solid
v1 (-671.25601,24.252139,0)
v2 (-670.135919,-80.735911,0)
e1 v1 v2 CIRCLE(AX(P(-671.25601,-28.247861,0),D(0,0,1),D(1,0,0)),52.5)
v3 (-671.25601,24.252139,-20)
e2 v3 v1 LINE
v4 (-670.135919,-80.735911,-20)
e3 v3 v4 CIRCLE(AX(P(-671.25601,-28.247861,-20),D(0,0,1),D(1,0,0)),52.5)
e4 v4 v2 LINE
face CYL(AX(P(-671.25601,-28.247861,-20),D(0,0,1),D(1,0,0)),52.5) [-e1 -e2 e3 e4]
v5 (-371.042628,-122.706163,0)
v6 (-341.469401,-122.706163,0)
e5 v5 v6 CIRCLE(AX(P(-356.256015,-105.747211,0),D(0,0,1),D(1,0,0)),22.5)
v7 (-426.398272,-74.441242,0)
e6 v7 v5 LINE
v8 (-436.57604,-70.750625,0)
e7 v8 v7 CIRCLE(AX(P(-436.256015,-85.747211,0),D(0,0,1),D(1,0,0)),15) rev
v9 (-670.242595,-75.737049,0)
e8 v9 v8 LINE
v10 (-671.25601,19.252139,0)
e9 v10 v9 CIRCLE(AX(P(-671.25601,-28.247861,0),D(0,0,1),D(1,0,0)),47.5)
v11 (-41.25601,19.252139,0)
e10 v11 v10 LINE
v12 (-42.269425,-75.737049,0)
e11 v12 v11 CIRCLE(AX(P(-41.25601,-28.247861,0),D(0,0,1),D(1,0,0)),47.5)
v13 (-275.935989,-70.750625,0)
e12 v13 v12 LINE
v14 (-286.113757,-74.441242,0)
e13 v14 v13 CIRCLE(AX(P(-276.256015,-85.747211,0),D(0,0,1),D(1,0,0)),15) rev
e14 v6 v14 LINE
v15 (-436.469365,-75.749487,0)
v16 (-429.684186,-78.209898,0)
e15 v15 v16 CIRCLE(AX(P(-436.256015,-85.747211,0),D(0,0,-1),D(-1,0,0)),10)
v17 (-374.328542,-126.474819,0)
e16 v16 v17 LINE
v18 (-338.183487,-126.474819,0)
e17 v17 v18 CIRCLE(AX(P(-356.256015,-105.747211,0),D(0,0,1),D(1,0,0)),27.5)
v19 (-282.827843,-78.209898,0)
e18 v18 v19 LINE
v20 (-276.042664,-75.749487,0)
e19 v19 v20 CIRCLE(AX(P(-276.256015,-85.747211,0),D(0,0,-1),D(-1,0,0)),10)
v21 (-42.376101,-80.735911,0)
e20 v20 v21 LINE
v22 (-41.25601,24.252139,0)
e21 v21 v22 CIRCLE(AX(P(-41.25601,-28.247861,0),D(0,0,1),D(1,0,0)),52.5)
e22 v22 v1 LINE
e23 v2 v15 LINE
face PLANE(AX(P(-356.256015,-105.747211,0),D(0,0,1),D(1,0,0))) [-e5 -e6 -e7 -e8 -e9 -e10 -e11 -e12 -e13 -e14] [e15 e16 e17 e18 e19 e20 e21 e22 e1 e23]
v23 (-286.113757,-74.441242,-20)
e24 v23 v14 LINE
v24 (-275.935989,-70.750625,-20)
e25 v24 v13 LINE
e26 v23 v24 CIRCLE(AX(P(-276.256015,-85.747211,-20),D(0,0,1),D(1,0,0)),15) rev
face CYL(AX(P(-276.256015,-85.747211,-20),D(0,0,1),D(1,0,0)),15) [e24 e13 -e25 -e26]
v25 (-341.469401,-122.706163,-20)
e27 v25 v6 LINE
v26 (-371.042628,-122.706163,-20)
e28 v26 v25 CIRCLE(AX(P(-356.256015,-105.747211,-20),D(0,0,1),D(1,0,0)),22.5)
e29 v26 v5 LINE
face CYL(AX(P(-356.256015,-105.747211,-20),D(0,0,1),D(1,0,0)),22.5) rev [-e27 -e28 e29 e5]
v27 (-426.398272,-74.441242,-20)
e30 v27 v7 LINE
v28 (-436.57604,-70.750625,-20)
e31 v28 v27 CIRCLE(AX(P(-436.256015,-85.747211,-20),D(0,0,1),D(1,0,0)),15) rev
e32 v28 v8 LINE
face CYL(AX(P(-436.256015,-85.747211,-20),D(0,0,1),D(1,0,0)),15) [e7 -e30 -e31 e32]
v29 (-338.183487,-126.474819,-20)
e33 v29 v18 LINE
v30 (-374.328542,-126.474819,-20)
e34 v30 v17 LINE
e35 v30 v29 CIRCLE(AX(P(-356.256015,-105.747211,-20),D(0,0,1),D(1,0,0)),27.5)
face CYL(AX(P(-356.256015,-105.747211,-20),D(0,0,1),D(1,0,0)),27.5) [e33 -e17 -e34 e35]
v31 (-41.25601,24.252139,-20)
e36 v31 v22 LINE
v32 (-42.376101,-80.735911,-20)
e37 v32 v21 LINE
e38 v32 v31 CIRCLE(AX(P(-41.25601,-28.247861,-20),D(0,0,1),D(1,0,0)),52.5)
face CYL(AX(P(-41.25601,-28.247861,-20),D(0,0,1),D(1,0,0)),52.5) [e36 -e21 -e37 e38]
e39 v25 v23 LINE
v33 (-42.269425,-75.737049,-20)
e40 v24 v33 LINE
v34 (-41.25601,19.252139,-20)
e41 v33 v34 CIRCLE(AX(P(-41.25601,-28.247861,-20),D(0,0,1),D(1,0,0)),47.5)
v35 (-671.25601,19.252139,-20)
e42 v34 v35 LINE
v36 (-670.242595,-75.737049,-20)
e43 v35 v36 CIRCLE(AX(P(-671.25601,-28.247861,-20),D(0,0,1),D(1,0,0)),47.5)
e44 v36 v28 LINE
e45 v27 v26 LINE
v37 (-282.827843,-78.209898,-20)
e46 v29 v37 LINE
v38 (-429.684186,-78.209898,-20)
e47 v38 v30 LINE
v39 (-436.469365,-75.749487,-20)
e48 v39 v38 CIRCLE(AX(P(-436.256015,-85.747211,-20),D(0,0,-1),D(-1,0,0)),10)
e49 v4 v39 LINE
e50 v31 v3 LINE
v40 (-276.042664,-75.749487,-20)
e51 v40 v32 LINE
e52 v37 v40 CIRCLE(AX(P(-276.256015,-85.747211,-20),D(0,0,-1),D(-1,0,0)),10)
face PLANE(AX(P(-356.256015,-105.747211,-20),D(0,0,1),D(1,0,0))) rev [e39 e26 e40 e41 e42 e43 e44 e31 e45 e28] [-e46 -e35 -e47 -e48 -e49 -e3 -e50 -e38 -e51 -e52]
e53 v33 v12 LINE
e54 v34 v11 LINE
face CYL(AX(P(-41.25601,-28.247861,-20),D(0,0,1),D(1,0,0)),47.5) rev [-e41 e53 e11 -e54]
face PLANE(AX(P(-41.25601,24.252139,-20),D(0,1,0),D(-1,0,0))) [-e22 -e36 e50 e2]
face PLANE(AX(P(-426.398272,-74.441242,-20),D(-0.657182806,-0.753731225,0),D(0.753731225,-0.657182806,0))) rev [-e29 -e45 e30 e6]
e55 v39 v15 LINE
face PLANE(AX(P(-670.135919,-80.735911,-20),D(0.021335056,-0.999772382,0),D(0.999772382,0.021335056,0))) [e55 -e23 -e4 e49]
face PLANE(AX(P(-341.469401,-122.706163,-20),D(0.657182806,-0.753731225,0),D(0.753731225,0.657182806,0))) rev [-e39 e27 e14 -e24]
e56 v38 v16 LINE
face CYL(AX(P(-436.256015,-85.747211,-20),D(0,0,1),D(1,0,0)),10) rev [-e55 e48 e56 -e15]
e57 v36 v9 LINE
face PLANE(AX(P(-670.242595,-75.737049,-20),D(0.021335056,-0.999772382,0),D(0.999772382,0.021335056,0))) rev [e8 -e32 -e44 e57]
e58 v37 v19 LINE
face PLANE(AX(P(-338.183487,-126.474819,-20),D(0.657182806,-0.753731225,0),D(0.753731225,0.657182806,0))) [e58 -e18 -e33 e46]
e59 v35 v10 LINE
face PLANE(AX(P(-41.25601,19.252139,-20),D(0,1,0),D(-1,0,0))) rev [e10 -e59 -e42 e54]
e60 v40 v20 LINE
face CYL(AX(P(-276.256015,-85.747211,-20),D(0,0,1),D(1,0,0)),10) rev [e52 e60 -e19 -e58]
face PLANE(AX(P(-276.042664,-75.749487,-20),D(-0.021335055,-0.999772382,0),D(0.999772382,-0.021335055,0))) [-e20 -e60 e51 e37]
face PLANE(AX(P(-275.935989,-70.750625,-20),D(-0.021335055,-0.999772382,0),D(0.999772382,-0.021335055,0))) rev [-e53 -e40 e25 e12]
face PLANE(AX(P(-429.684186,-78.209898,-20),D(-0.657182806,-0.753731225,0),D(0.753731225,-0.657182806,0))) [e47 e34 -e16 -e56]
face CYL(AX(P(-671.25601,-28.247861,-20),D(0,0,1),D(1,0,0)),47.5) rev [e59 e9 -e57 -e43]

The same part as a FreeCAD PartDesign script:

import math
import FreeCAD as App
import Part
import Sketcher

V = App.Vector
Q = App.Units.Quantity

doc = App.newDocument("Part")
body = doc.addObject("PartDesign::Body", "Body")

# Sketch on XY plane
sketch1 = body.newObject("Sketcher::SketchObject", "Sketch")
sketch1.AttachmentSupport = (doc.getObject("XY_Plane"), [""])
sketch1.MapMode = "FlatFace"
sketch1.addGeometry([
    Part.LineSegment(V(-430, -78, 0), V(-374, -126, 0)),  # 0
    Part.ArcOfCircle(Part.Circle(V(-356, -106, 0), V(0, 0, 1), 28), math.radians(-131), math.radians(-49)),  # 1
    Part.LineSegment(V(-338, -126, 0), V(-283, -78, 0)),  # 2
    Part.ArcOfCircle(Part.Circle(V(-276, -86, 0), V(0, 0, 1), 10), math.radians(89), math.radians(131)),  # 3
    Part.LineSegment(V(-276, -76, 0), V(-42, -81, 0)),  # 4
    Part.ArcOfCircle(Part.Circle(V(-41, -28, 0), V(0, 0, 1), 52), math.radians(-91), math.radians(90)),  # 5
    Part.LineSegment(V(-41, 24, 0), V(-671, 24, 0)),  # 6
    Part.ArcOfCircle(Part.Circle(V(-671, -28, 0), V(0, 0, 1), 52), math.radians(90), math.radians(271)),  # 7
    Part.LineSegment(V(-670, -81, 0), V(-436, -76, 0)),  # 8
    Part.ArcOfCircle(Part.Circle(V(-436, -86, 0), V(0, 0, 1), 10), math.radians(49), math.radians(91)),  # 9
    Part.LineSegment(V(-371, -123, 0), V(-426, -74, 0)),  # 10
    Part.ArcOfCircle(Part.Circle(V(-436, -86, 0), V(0, 0, 1), 15), math.radians(49), math.radians(91)),  # 11
    Part.LineSegment(V(-437, -71, 0), V(-670, -76, 0)),  # 12
    Part.ArcOfCircle(Part.Circle(V(-671, -28, 0), V(0, 0, 1), 48), math.radians(90), math.radians(271)),  # 13
    Part.LineSegment(V(-671, 19, 0), V(-41, 19, 0)),  # 14
    Part.ArcOfCircle(Part.Circle(V(-41, -28, 0), V(0, 0, 1), 48), math.radians(-91), math.radians(90)),  # 15
    Part.LineSegment(V(-42, -76, 0), V(-276, -71, 0)),  # 16
    Part.ArcOfCircle(Part.Circle(V(-276, -86, 0), V(0, 0, 1), 15), math.radians(89), math.radians(131)),  # 17
    Part.LineSegment(V(-286, -74, 0), V(-341, -123, 0)),  # 18
    Part.ArcOfCircle(Part.Circle(V(-356, -106, 0), V(0, 0, 1), 22), math.radians(-131), math.radians(-49)),  # 19
], False)
sketch1.addConstraint([
    Sketcher.Constraint("Tangent", 0, 2, 1, 1),
    Sketcher.Constraint("Tangent", 1, 2, 2, 1),
    Sketcher.Constraint("Tangent", 2, 2, 3, 2),
    Sketcher.Constraint("Tangent", 3, 1, 4, 1),
    Sketcher.Constraint("Tangent", 4, 2, 5, 1),
    Sketcher.Constraint("Tangent", 5, 2, 6, 1),
    Sketcher.Constraint("Tangent", 6, 2, 7, 1),
    Sketcher.Constraint("Tangent", 7, 2, 8, 1),
    Sketcher.Constraint("Tangent", 8, 2, 9, 2),
    Sketcher.Constraint("Tangent", 9, 1, 0, 1),
    Sketcher.Constraint("Tangent", 10, 2, 11, 1),
    Sketcher.Constraint("Tangent", 11, 2, 12, 1),
    Sketcher.Constraint("Tangent", 12, 2, 13, 2),
    Sketcher.Constraint("Tangent", 13, 1, 14, 1),
    Sketcher.Constraint("Tangent", 14, 2, 15, 2),
    Sketcher.Constraint("Tangent", 15, 1, 16, 1),
    Sketcher.Constraint("Tangent", 16, 2, 17, 1),
    Sketcher.Constraint("Tangent", 17, 2, 18, 1),
    Sketcher.Constraint("Tangent", 18, 2, 19, 2),
    Sketcher.Constraint("Tangent", 19, 1, 10, 1),
    Sketcher.Constraint("Horizontal", 6),
    Sketcher.Constraint("Horizontal", 14),
    Sketcher.Constraint("Coincident", 11, 3, 9, 3),
    Sketcher.Constraint("Coincident", 13, 3, 7, 3),
    Sketcher.Constraint("Coincident", 15, 3, 5, 3),
    Sketcher.Constraint("Coincident", 17, 3, 3, 3),
    Sketcher.Constraint("Coincident", 19, 3, 1, 3),
    Sketcher.Constraint("Equal", 5, 7),
    Sketcher.Constraint("Equal", 3, 9),
    Sketcher.Constraint("Equal", 11, 17),
    Sketcher.Constraint("Parallel", 0, 10),
    Sketcher.Constraint("Parallel", 8, 12),
    Sketcher.Constraint("Horizontal", 3, 3, 9, 3),
    Sketcher.Constraint("Horizontal", 0, 2, 1, 2),
    Sketcher.Constraint("Radius", 3, Q("10 mm")),
    Sketcher.Constraint("Radius", 11, Q("15 mm")),
    Sketcher.Constraint("Radius", 1, Q("27.5 mm")),
    Sketcher.Constraint("Radius", 5, Q("52.5 mm")),
    Sketcher.Constraint("DistanceX", 6, 2, 6, 1, Q("630 mm")),
    Sketcher.Constraint("DistanceX", 1, 3, 3, 3, Q("80 mm")),
    Sketcher.Constraint("DistanceY", 1, 3, 3, 3, Q("20 mm")),
    Sketcher.Constraint("DistanceY", 2, 2, -1, 1, Q("78.209898 mm")),
    Sketcher.Constraint("DistanceX", 4, 2, -1, 1, Q("42.376101 mm")),
    Sketcher.Constraint("DistanceX", 18, 2, -1, 1, Q("341.469401 mm")),
    Sketcher.Constraint("DistanceY", 3, 3, 4, 2, Q("5.0113 mm")),
])
pad1 = body.newObject("PartDesign::Pad", "Pad")
pad1.Profile = sketch1
pad1.Length = 20
pad1.Reversed = True

doc.recompute()
